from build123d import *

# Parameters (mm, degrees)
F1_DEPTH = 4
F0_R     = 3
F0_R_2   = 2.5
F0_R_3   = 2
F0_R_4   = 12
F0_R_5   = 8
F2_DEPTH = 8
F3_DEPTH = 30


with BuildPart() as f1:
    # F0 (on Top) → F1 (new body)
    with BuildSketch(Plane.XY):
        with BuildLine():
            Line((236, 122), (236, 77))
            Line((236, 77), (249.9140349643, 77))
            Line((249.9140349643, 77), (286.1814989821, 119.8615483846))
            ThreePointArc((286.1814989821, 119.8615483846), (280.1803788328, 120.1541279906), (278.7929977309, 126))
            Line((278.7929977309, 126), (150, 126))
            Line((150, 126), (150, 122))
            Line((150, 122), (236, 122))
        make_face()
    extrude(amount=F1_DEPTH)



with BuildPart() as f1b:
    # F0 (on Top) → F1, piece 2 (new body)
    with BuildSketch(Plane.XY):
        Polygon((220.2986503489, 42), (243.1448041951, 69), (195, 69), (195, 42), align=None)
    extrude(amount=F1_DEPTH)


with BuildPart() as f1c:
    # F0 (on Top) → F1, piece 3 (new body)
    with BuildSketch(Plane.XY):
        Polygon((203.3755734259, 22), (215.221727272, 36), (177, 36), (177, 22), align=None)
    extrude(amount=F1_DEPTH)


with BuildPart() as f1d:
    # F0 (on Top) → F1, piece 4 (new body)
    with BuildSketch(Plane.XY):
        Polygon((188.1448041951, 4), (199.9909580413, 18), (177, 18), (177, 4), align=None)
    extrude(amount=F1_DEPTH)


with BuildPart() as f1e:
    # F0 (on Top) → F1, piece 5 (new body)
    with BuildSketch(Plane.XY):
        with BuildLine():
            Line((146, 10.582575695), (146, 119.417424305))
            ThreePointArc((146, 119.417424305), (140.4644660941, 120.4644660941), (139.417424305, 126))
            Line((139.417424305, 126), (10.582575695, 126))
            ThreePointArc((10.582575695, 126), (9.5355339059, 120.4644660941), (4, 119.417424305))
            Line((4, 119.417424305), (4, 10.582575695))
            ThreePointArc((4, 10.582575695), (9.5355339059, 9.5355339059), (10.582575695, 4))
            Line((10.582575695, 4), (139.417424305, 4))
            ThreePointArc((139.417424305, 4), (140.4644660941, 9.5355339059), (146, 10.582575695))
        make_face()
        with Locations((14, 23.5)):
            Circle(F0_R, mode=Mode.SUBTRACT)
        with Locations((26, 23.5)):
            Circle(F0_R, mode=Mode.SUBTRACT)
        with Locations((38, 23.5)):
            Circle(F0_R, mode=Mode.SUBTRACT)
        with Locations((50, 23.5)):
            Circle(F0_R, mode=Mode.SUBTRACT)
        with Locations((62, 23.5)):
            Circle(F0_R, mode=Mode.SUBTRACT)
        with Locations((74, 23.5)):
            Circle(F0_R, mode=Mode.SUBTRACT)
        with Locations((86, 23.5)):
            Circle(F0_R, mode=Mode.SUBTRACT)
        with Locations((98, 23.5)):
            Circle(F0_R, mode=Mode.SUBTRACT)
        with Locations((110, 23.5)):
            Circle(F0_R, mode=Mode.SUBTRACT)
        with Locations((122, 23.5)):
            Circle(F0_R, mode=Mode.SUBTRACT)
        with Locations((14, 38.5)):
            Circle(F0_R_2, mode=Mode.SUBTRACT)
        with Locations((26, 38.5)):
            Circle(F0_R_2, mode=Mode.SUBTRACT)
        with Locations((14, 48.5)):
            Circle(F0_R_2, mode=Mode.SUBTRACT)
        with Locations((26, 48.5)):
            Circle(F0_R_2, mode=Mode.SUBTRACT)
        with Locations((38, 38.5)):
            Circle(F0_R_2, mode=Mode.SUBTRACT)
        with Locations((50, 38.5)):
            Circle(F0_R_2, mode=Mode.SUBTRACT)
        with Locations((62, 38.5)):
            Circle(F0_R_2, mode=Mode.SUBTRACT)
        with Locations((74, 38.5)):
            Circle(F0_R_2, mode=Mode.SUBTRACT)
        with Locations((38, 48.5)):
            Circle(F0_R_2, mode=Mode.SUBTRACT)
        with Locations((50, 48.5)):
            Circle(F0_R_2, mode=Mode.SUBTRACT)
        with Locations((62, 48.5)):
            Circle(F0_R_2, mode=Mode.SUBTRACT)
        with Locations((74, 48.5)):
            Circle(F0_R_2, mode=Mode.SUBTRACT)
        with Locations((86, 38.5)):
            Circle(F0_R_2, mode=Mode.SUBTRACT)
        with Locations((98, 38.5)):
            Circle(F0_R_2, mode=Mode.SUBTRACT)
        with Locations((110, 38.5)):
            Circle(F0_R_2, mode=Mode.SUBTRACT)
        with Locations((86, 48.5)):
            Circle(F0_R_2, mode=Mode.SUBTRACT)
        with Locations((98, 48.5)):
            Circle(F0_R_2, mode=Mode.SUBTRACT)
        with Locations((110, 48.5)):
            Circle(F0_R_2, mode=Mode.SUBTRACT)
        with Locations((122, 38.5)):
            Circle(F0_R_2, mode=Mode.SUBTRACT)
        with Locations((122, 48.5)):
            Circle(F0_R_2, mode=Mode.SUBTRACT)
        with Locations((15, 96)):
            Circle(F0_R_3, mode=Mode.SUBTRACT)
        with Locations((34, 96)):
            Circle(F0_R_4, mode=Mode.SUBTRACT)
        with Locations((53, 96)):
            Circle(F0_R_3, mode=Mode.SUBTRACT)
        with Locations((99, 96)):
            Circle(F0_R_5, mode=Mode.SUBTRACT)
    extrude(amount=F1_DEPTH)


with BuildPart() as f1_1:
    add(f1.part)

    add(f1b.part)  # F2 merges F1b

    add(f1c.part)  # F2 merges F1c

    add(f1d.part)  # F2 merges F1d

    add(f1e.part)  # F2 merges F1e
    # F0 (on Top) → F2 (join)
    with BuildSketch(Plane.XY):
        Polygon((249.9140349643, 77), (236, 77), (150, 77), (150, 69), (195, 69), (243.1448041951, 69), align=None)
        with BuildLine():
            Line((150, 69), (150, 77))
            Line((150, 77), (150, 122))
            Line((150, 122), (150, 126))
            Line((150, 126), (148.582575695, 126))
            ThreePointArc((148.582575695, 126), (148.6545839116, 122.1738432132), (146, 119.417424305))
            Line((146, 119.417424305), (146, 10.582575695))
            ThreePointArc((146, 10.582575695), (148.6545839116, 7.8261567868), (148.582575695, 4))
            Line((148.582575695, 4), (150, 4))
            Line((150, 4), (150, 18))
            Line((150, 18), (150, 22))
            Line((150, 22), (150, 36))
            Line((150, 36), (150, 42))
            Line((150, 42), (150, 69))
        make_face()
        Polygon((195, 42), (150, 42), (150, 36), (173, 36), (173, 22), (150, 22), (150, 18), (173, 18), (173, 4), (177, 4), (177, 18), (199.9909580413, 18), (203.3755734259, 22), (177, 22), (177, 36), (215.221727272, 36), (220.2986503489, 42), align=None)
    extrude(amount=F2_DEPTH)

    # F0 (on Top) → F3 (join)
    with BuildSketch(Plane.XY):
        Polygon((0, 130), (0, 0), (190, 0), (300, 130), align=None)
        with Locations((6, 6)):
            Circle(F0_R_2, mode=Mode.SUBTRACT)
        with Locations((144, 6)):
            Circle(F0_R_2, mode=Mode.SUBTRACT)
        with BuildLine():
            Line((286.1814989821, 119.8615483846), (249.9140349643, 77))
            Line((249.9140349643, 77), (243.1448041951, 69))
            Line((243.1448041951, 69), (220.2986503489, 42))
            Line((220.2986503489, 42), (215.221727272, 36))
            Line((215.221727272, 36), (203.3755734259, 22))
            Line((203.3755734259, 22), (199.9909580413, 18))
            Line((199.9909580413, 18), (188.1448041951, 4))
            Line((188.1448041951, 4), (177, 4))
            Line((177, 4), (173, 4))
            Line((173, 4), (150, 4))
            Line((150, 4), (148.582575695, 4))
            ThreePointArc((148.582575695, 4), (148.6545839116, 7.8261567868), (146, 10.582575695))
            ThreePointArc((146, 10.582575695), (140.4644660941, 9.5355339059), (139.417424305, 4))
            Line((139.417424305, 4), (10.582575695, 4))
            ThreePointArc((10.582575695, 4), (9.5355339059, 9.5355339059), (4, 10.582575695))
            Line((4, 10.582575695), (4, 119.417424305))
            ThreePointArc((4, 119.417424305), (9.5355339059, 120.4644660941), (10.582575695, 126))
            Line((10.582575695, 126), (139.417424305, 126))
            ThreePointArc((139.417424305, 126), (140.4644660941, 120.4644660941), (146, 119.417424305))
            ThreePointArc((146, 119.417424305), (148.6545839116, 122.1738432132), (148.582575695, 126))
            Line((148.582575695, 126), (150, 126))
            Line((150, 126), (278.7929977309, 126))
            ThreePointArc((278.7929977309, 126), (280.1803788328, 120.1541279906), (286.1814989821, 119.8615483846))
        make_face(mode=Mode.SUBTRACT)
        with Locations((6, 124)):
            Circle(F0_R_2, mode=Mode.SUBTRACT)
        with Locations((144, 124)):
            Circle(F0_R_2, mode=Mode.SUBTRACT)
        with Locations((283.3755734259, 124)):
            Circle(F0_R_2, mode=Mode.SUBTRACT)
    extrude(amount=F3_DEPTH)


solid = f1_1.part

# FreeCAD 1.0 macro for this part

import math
import FreeCAD as App
import Part
import Sketcher


def add_polygon(sketch, points):
    """Adds a closed chain of lines whose ends are joined by coincident constraints."""
    first, n = sketch.GeometryCount, len(points)
    for a, b in zip(points, points[1:] + points[:1]):
        sketch.addGeometry(Part.LineSegment(App.Vector(*a, 0), App.Vector(*b, 0)), False)
    for i in range(n):
        sketch.addConstraint(Sketcher.Constraint("Coincident", first + i, 2, first + (i + 1) % n, 1))

doc = App.newDocument("Part")
body = doc.addObject("PartDesign::Body", "Body")

# Sketch on XY plane
sketch1 = body.newObject("Sketcher::SketchObject", "Sketch")
sketch1.AttachmentSupport = (doc.getObject("XY_Plane"), [""])
sketch1.MapMode = "FlatFace"
sketch1.addGeometry(Part.LineSegment(App.Vector(236, 122, 0), App.Vector(236, 77, 0)), False)
sketch1.addGeometry(Part.LineSegment(App.Vector(236, 77, 0), App.Vector(249.9, 77, 0)), False)
sketch1.addGeometry(Part.LineSegment(App.Vector(249.9, 77, 0), App.Vector(286.2, 119.9, 0)), False)
sketch1.addGeometry(Part.ArcOfCircle(Part.Circle(App.Vector(283.4, 124, 0), App.Vector(0, 0, 1), 5), math.radians(156), math.radians(304)), False)
sketch1.addGeometry(Part.LineSegment(App.Vector(278.8, 126, 0), App.Vector(150, 126, 0)), False)
sketch1.addGeometry(Part.LineSegment(App.Vector(150, 126, 0), App.Vector(150, 122, 0)), False)
sketch1.addGeometry(Part.LineSegment(App.Vector(150, 122, 0), App.Vector(236, 122, 0)), False)
sketch1.addConstraint(Sketcher.Constraint("Coincident", 0, 2, 1, 1))
sketch1.addConstraint(Sketcher.Constraint("Coincident", 1, 2, 2, 1))
sketch1.addConstraint(Sketcher.Constraint("Coincident", 2, 2, 3, 2))
sketch1.addConstraint(Sketcher.Constraint("Coincident", 3, 1, 4, 1))
sketch1.addConstraint(Sketcher.Constraint("Coincident", 4, 2, 5, 1))
sketch1.addConstraint(Sketcher.Constraint("Coincident", 5, 2, 6, 1))
sketch1.addConstraint(Sketcher.Constraint("Coincident", 6, 2, 0, 1))
sketch1.addConstraint(Sketcher.Constraint("Vertical", 0))
sketch1.addConstraint(Sketcher.Constraint("Horizontal", 1))
sketch1.addConstraint(Sketcher.Constraint("Horizontal", 4))
sketch1.addConstraint(Sketcher.Constraint("Vertical", 5))
sketch1.addConstraint(Sketcher.Constraint("Horizontal", 6))
sketch1.addConstraint(Sketcher.Constraint("Radius", 3, 5.0))
sketch1.addConstraint(Sketcher.Constraint("DistanceX", 6, 1, 6, 2, 86.0))
sketch1.addConstraint(Sketcher.Constraint("DistanceY", 0, 2, 0, 1, 45.0))
sketch1.addConstraint(Sketcher.Constraint("DistanceY", 5, 2, 5, 1, 4.0))
sketch1.addConstraint(Sketcher.Constraint("DistanceY", -1, 1, 3, 3, 124.0))
sketch1.addConstraint(Sketcher.Constraint("DistanceX", -1, 1, 0, 2, 236.0))
sketch1.addConstraint(Sketcher.Constraint("DistanceY", -1, 1, 0, 2, 77.0))
sketch1.addConstraint(Sketcher.Constraint("DistanceX", -1, 1, 2, 2, 286.181499))
sketch1.addConstraint(Sketcher.Constraint("DistanceX", 3, 1, 2, 2, 7.388501))
sketch1.addConstraint(Sketcher.Constraint("DistanceX", 1, 1, 1, 2, 13.914035))
pad1 = body.newObject("PartDesign::Pad", "Pad")
pad1.Profile = sketch1
pad1.Length = 4
body2 = doc.addObject("PartDesign::Body", "Body001")

# Sketch on XY plane
sketch2 = body2.newObject("Sketcher::SketchObject", "Sketch001")
sketch2.AttachmentSupport = (doc.getObject("XY_Plane001"), [""])
sketch2.MapMode = "FlatFace"
add_polygon(sketch2, [(220, 42), (243, 69), (195, 69), (195, 42)])  # lines 0-3
sketch2.addConstraint(Sketcher.Constraint("Horizontal", 1))
sketch2.addConstraint(Sketcher.Constraint("Vertical", 2))
sketch2.addConstraint(Sketcher.Constraint("Horizontal", 3))
sketch2.addConstraint(Sketcher.Constraint("DistanceY", 2, 2, 2, 1, 27.0))
sketch2.addConstraint(Sketcher.Constraint("DistanceY", -1, 1, 0, 2, 69.0))
sketch2.addConstraint(Sketcher.Constraint("DistanceX", -1, 1, 1, 2, 195.0))
sketch2.addConstraint(Sketcher.Constraint("DistanceX", 3, 1, 3, 2, 25.29865))
sketch2.addConstraint(Sketcher.Constraint("DistanceX", 1, 2, 1, 1, 48.144804))
pad2 = body2.newObject("PartDesign::Pad", "Pad001")
pad2.Profile = sketch2
pad2.Length = 4
body3 = doc.addObject("PartDesign::Body", "Body002")

# Sketch on XY plane
sketch3 = body3.newObject("Sketcher::SketchObject", "Sketch002")
sketch3.AttachmentSupport = (doc.getObject("XY_Plane002"), [""])
sketch3.MapMode = "FlatFace"
add_polygon(sketch3, [(203, 22), (215, 36), (177, 36), (177, 22)])  # lines 0-3
sketch3.addConstraint(Sketcher.Constraint("Horizontal", 1))
sketch3.addConstraint(Sketcher.Constraint("Vertical", 2))
sketch3.addConstraint(Sketcher.Constraint("Horizontal", 3))
sketch3.addConstraint(Sketcher.Constraint("DistanceY", 2, 2, 2, 1, 14.0))
sketch3.addConstraint(Sketcher.Constraint("DistanceY", -1, 1, 0, 2, 36.0))
sketch3.addConstraint(Sketcher.Constraint("DistanceX", -1, 1, 1, 2, 177.0))
sketch3.addConstraint(Sketcher.Constraint("Distance", 0, 18.339339))
sketch3.addConstraint(Sketcher.Constraint("DistanceX", 1, 2, 1, 1, 38.221727))
pad3 = body3.newObject("PartDesign::Pad", "Pad002")
pad3.Profile = sketch3
pad3.Length = 4
body4 = doc.addObject("PartDesign::Body", "Body003")

# Sketch on XY plane
sketch4 = body4.newObject("Sketcher::SketchObject", "Sketch003")
sketch4.AttachmentSupport = (doc.getObject("XY_Plane003"), [""])
sketch4.MapMode = "FlatFace"
add_polygon(sketch4, [(188, 4), (200, 18), (177, 18), (177, 4)])  # lines 0-3
sketch4.addConstraint(Sketcher.Constraint("Horizontal", 1))
sketch4.addConstraint(Sketcher.Constraint("Vertical", 2))
sketch4.addConstraint(Sketcher.Constraint("Horizontal", 3))
sketch4.addConstraint(Sketcher.Constraint("DistanceY", 2, 2, 2, 1, 14.0))
sketch4.addConstraint(Sketcher.Constraint("DistanceY", -1, 1, 0, 2, 18.0))
sketch4.addConstraint(Sketcher.Constraint("DistanceX", -1, 1, 1, 2, 177.0))
sketch4.addConstraint(Sketcher.Constraint("DistanceX", 1, 2, 1, 1, 22.990958))
sketch4.addConstraint(Sketcher.Constraint("Distance", 0, 18.339339))
pad4 = body4.newObject("PartDesign::Pad", "Pad003")
pad4.Profile = sketch4
pad4.Length = 4
body5 = doc.addObject("PartDesign::Body", "Body004")

# Sketch on XY plane
sketch5 = body5.newObject("Sketcher::SketchObject", "Sketch004")
sketch5.AttachmentSupport = (doc.getObject("XY_Plane004"), [""])
sketch5.MapMode = "FlatFace"
sketch5.addGeometry(Part.LineSegment(App.Vector(146, 10.6, 0), App.Vector(146, 119.4, 0)), False)
sketch5.addGeometry(Part.ArcOfCircle(Part.Circle(App.Vector(144, 124, 0), App.Vector(0, 0, 1), 5), math.radians(156), math.radians(294)), False)
sketch5.addGeometry(Part.LineSegment(App.Vector(139.4, 126, 0), App.Vector(10.6, 126, 0)), False)
sketch5.addGeometry(Part.ArcOfCircle(Part.Circle(App.Vector(6, 124, 0), App.Vector(0, 0, 1), 5), math.radians(-114), math.radians(24)), False)
sketch5.addGeometry(Part.LineSegment(App.Vector(4, 119.4, 0), App.Vector(4, 10.6, 0)), False)
sketch5.addGeometry(Part.ArcOfCircle(Part.Circle(App.Vector(6, 6, 0), App.Vector(0, 0, 1), 5), math.radians(-24), math.radians(114)), False)
sketch5.addGeometry(Part.LineSegment(App.Vector(10.6, 4, 0), App.Vector(139.4, 4, 0)), False)
sketch5.addGeometry(Part.ArcOfCircle(Part.Circle(App.Vector(144, 6, 0), App.Vector(0, 0, 1), 5), math.radians(66), math.radians(204)), False)
sketch5.addGeometry(Part.Circle(App.Vector(14, 23.5, 0), App.Vector(0, 0, 1), 3), False)
sketch5.addGeometry(Part.Circle(App.Vector(26, 23.5, 0), App.Vector(0, 0, 1), 3), False)
sketch5.addGeometry(Part.Circle(App.Vector(38, 23.5, 0), App.Vector(0, 0, 1), 3), False)
sketch5.addGeometry(Part.Circle(App.Vector(14, 38.5, 0), App.Vector(0, 0, 1), 2.5), False)
sketch5.addGeometry(Part.Circle(App.Vector(26, 38.5, 0), App.Vector(0, 0, 1), 2.5), False)
sketch5.addGeometry(Part.Circle(App.Vector(38, 38.5, 0), App.Vector(0, 0, 1), 2.5), False)
sketch5.addGeometry(Part.Circle(App.Vector(50, 23.5, 0), App.Vector(0, 0, 1), 3), False)
sketch5.addGeometry(Part.Circle(App.Vector(62, 23.5, 0), App.Vector(0, 0, 1), 3), False)
sketch5.addGeometry(Part.Circle(App.Vector(50, 38.5, 0), App.Vector(0, 0, 1), 2.5), False)
sketch5.addGeometry(Part.Circle(App.Vector(62, 38.5, 0), App.Vector(0, 0, 1), 2.5), False)
sketch5.addGeometry(Part.Circle(App.Vector(14, 48.5, 0), App.Vector(0, 0, 1), 2.5), False)
sketch5.addGeometry(Part.Circle(App.Vector(26, 48.5, 0), App.Vector(0, 0, 1), 2.5), False)
sketch5.addGeometry(Part.Circle(App.Vector(38, 48.5, 0), App.Vector(0, 0, 1), 2.5), False)
sketch5.addGeometry(Part.Circle(App.Vector(50, 48.5, 0), App.Vector(0, 0, 1), 2.5), False)
sketch5.addGeometry(Part.Circle(App.Vector(62, 48.5, 0), App.Vector(0, 0, 1), 2.5), False)
sketch5.addGeometry(Part.Circle(App.Vector(74, 23.5, 0), App.Vector(0, 0, 1), 3), False)
sketch5.addGeometry(Part.Circle(App.Vector(86, 23.5, 0), App.Vector(0, 0, 1), 3), False)
sketch5.addGeometry(Part.Circle(App.Vector(74, 38.5, 0), App.Vector(0, 0, 1), 2.5), False)
sketch5.addGeometry(Part.Circle(App.Vector(86, 38.5, 0), App.Vector(0, 0, 1), 2.5), False)
sketch5.addGeometry(Part.Circle(App.Vector(98, 23.5, 0), App.Vector(0, 0, 1), 3), False)
sketch5.addGeometry(Part.Circle(App.Vector(110, 23.5, 0), App.Vector(0, 0, 1), 3), False)
sketch5.addGeometry(Part.Circle(App.Vector(122, 23.5, 0), App.Vector(0, 0, 1), 3), False)
sketch5.addGeometry(Part.Circle(App.Vector(98, 38.5, 0), App.Vector(0, 0, 1), 2.5), False)
sketch5.addGeometry(Part.Circle(App.Vector(110, 38.5, 0), App.Vector(0, 0, 1), 2.5), False)
sketch5.addGeometry(Part.Circle(App.Vector(122, 38.5, 0), App.Vector(0, 0, 1), 2.5), False)
sketch5.addGeometry(Part.Circle(App.Vector(74, 48.5, 0), App.Vector(0, 0, 1), 2.5), False)
sketch5.addGeometry(Part.Circle(App.Vector(86, 48.5, 0), App.Vector(0, 0, 1), 2.5), False)
sketch5.addGeometry(Part.Circle(App.Vector(98, 48.5, 0), App.Vector(0, 0, 1), 2.5), False)
sketch5.addGeometry(Part.Circle(App.Vector(110, 48.5, 0), App.Vector(0, 0, 1), 2.5), False)
sketch5.addGeometry(Part.Circle(App.Vector(122, 48.5, 0), App.Vector(0, 0, 1), 2.5), False)
sketch5.addGeometry(Part.Circle(App.Vector(15, 96, 0), App.Vector(0, 0, 1), 2), False)
sketch5.addGeometry(Part.Circle(App.Vector(34, 96, 0), App.Vector(0, 0, 1), 12), False)
sketch5.addGeometry(Part.Circle(App.Vector(53, 96, 0), App.Vector(0, 0, 1), 2), False)
sketch5.addGeometry(Part.Circle(App.Vector(99, 96, 0), App.Vector(0, 0, 1), 8), False)
sketch5.addConstraint(Sketcher.Constraint("Coincident", 0, 2, 1, 2))
sketch5.addConstraint(Sketcher.Constraint("Coincident", 1, 1, 2, 1))
sketch5.addConstraint(Sketcher.Constraint("Coincident", 2, 2, 3, 2))
sketch5.addConstraint(Sketcher.Constraint("Coincident", 3, 1, 4, 1))
sketch5.addConstraint(Sketcher.Constraint("Coincident", 4, 2, 5, 2))
sketch5.addConstraint(Sketcher.Constraint("Coincident", 5, 1, 6, 1))
sketch5.addConstraint(Sketcher.Constraint("Coincident", 6, 2, 7, 2))
sketch5.addConstraint(Sketcher.Constraint("Coincident", 7, 1, 0, 1))
sketch5.addConstraint(Sketcher.Constraint("Vertical", 0))
sketch5.addConstraint(Sketcher.Constraint("Horizontal", 2))
sketch5.addConstraint(Sketcher.Constraint("Vertical", 4))
sketch5.addConstraint(Sketcher.Constraint("Horizontal", 6))
sketch5.addConstraint(Sketcher.Constraint("Equal", 1, 3))
sketch5.addConstraint(Sketcher.Constraint("Equal", 3, 5))
sketch5.addConstraint(Sketcher.Constraint("Equal", 5, 7))
sketch5.addConstraint(Sketcher.Constraint("Equal", 8, 9))
sketch5.addConstraint(Sketcher.Constraint("Equal", 9, 10))
sketch5.addConstraint(Sketcher.Constraint("Equal", 11, 12))
sketch5.addConstraint(Sketcher.Constraint("Equal", 12, 13))
sketch5.addConstraint(Sketcher.Constraint("Equal", 10, 14))
sketch5.addConstraint(Sketcher.Constraint("Equal", 14, 15))
sketch5.addConstraint(Sketcher.Constraint("Equal", 13, 16))
sketch5.addConstraint(Sketcher.Constraint("Equal", 16, 17))
sketch5.addConstraint(Sketcher.Constraint("Equal", 17, 18))
sketch5.addConstraint(Sketcher.Constraint("Equal", 18, 19))
sketch5.addConstraint(Sketcher.Constraint("Equal", 19, 20))
sketch5.addConstraint(Sketcher.Constraint("Equal", 20, 21))
sketch5.addConstraint(Sketcher.Constraint("Equal", 21, 22))
sketch5.addConstraint(Sketcher.Constraint("Equal", 15, 23))
sketch5.addConstraint(Sketcher.Constraint("Equal", 23, 24))
sketch5.addConstraint(Sketcher.Constraint("Equal", 22, 25))
sketch5.addConstraint(Sketcher.Constraint("Equal", 25, 26))
sketch5.addConstraint(Sketcher.Constraint("Equal", 24, 27))
sketch5.addConstraint(Sketcher.Constraint("Equal", 27, 28))
sketch5.addConstraint(Sketcher.Constraint("Equal", 28, 29))
sketch5.addConstraint(Sketcher.Constraint("Equal", 26, 30))
sketch5.addConstraint(Sketcher.Constraint("Equal", 30, 31))
sketch5.addConstraint(Sketcher.Constraint("Equal", 31, 32))
sketch5.addConstraint(Sketcher.Constraint("Equal", 32, 33))
sketch5.addConstraint(Sketcher.Constraint("Equal", 33, 34))
sketch5.addConstraint(Sketcher.Constraint("Equal", 34, 35))
sketch5.addConstraint(Sketcher.Constraint("Equal", 35, 36))
sketch5.addConstraint(Sketcher.Constraint("Equal", 36, 37))
sketch5.addConstraint(Sketcher.Constraint("Equal", 38, 40))
sketch5.addConstraint(Sketcher.Constraint("Horizontal", 1, 3, 3, 3))
sketch5.addConstraint(Sketcher.Constraint("Horizontal", 5, 3, 7, 3))
sketch5.addConstraint(Sketcher.Constraint("Horizontal", 8, 3, 9, 3))
sketch5.addConstraint(Sketcher.Constraint("Horizontal", 9, 3, 10, 3))
sketch5.addConstraint(Sketcher.Constraint("Horizontal", 11, 3, 12, 3))
sketch5.addConstraint(Sketcher.Constraint("Horizontal", 12, 3, 13, 3))
sketch5.addConstraint(Sketcher.Constraint("Horizontal", 10, 3, 14, 3))
sketch5.addConstraint(Sketcher.Constraint("Horizontal", 14, 3, 15, 3))
sketch5.addConstraint(Sketcher.Constraint("Horizontal", 13, 3, 16, 3))
sketch5.addConstraint(Sketcher.Constraint("Horizontal", 16, 3, 17, 3))
sketch5.addConstraint(Sketcher.Constraint("Horizontal", 18, 3, 19, 3))
sketch5.addConstraint(Sketcher.Constraint("Horizontal", 19, 3, 20, 3))
sketch5.addConstraint(Sketcher.Constraint("Horizontal", 20, 3, 21, 3))
sketch5.addConstraint(Sketcher.Constraint("Horizontal", 21, 3, 22, 3))
sketch5.addConstraint(Sketcher.Constraint("Horizontal", 15, 3, 23, 3))
sketch5.addConstraint(Sketcher.Constraint("Horizontal", 23, 3, 24, 3))
sketch5.addConstraint(Sketcher.Constraint("Horizontal", 17, 3, 25, 3))
sketch5.addConstraint(Sketcher.Constraint("Horizontal", 25, 3, 26, 3))
sketch5.addConstraint(Sketcher.Constraint("Horizontal", 24, 3, 27, 3))
sketch5.addConstraint(Sketcher.Constraint("Horizontal", 27, 3, 28, 3))
sketch5.addConstraint(Sketcher.Constraint("Horizontal", 28, 3, 29, 3))
sketch5.addConstraint(Sketcher.Constraint("Horizontal", 26, 3, 30, 3))
sketch5.addConstraint(Sketcher.Constraint("Horizontal", 30, 3, 31, 3))
sketch5.addConstraint(Sketcher.Constraint("Horizontal", 31, 3, 32, 3))
sketch5.addConstraint(Sketcher.Constraint("Horizontal", 22, 3, 33, 3))
sketch5.addConstraint(Sketcher.Constraint("Horizontal", 33, 3, 34, 3))
sketch5.addConstraint(Sketcher.Constraint("Horizontal", 34, 3, 35, 3))
sketch5.addConstraint(Sketcher.Constraint("Horizontal", 35, 3, 36, 3))
sketch5.addConstraint(Sketcher.Constraint("Horizontal", 36, 3, 37, 3))
sketch5.addConstraint(Sketcher.Constraint("Horizontal", 38, 3, 39, 3))
sketch5.addConstraint(Sketcher.Constraint("Horizontal", 39, 3, 40, 3))
sketch5.addConstraint(Sketcher.Constraint("Horizontal", 40, 3, 41, 3))
sketch5.addConstraint(Sketcher.Constraint("Horizontal", 0, 2, 3, 1))
sketch5.addConstraint(Sketcher.Constraint("Horizontal", 4, 2, 7, 1))
sketch5.addConstraint(Sketcher.Constraint("Vertical", 3, 3, 5, 3))
sketch5.addConstraint(Sketcher.Constraint("Vertical", 8, 3, 11, 3))
sketch5.addConstraint(Sketcher.Constraint("Vertical", 9, 3, 12, 3))
sketch5.addConstraint(Sketcher.Constraint("Vertical", 10, 3, 13, 3))
sketch5.addConstraint(Sketcher.Constraint("Vertical", 14, 3, 16, 3))
sketch5.addConstraint(Sketcher.Constraint("Vertical", 15, 3, 17, 3))
sketch5.addConstraint(Sketcher.Constraint("Vertical", 11, 3, 18, 3))
sketch5.addConstraint(Sketcher.Constraint("Vertical", 12, 3, 19, 3))
sketch5.addConstraint(Sketcher.Constraint("Vertical", 13, 3, 20, 3))
sketch5.addConstraint(Sketcher.Constraint("Vertical", 16, 3, 21, 3))
sketch5.addConstraint(Sketcher.Constraint("Vertical", 17, 3, 22, 3))
sketch5.addConstraint(Sketcher.Constraint("Vertical", 23, 3, 25, 3))
sketch5.addConstraint(Sketcher.Constraint("Vertical", 24, 3, 26, 3))
sketch5.addConstraint(Sketcher.Constraint("Vertical", 27, 3, 30, 3))
sketch5.addConstraint(Sketcher.Constraint("Vertical", 28, 3, 31, 3))
sketch5.addConstraint(Sketcher.Constraint("Vertical", 29, 3, 32, 3))
sketch5.addConstraint(Sketcher.Constraint("Vertical", 25, 3, 33, 3))
sketch5.addConstraint(Sketcher.Constraint("Vertical", 26, 3, 34, 3))
sketch5.addConstraint(Sketcher.Constraint("Vertical", 30, 3, 35, 3))
sketch5.addConstraint(Sketcher.Constraint("Vertical", 31, 3, 36, 3))
sketch5.addConstraint(Sketcher.Constraint("Vertical", 32, 3, 37, 3))
sketch5.addConstraint(Sketcher.Constraint("Vertical", 2, 2, 5, 1))
sketch5.addConstraint(Sketcher.Constraint("Diameter", 8, 6.0))
sketch5.addConstraint(Sketcher.Constraint("Diameter", 11, 5.0))
sketch5.addConstraint(Sketcher.Constraint("Diameter", 38, 4.0))
sketch5.addConstraint(Sketcher.Constraint("Diameter", 39, 24.0))
sketch5.addConstraint(Sketcher.Constraint("Diameter", 41, 16.0))
sketch5.addConstraint(Sketcher.Constraint("Radius", 1, 5.0))
sketch5.addConstraint(Sketcher.Constraint("DistanceX", -1, 1, 1, 3, 144.0))
sketch5.addConstraint(Sketcher.Constraint("DistanceY", -1, 1, 1, 3, 124.0))
sketch5.addConstraint(Sketcher.Constraint("DistanceX", -1, 1, 3, 3, 6.0))
sketch5.addConstraint(Sketcher.Constraint("DistanceY", -1, 1, 5, 3, 6.0))
sketch5.addConstraint(Sketcher.Constraint("DistanceX", -1, 1, 8, 3, 14.0))
sketch5.addConstraint(Sketcher.Constraint("DistanceX", -1, 1, 9, 3, 26.0))
sketch5.addConstraint(Sketcher.Constraint("DistanceX", -1, 1, 10, 3, 38.0))
sketch5.addConstraint(Sketcher.Constraint("DistanceX", -1, 1, 14, 3, 50.0))
sketch5.addConstraint(Sketcher.Constraint("DistanceX", -1, 1, 15, 3, 62.0))
sketch5.addConstraint(Sketcher.Constraint("DistanceX", -1, 1, 23, 3, 74.0))
sketch5.addConstraint(Sketcher.Constraint("DistanceX", -1, 1, 24, 3, 86.0))
sketch5.addConstraint(Sketcher.Constraint("DistanceX", -1, 1, 27, 3, 98.0))
sketch5.addConstraint(Sketcher.Constraint("DistanceX", -1, 1, 28, 3, 110.0))
sketch5.addConstraint(Sketcher.Constraint("DistanceX", -1, 1, 29, 3, 122.0))
sketch5.addConstraint(Sketcher.Constraint("DistanceX", -1, 1, 38, 3, 15.0))
sketch5.addConstraint(Sketcher.Constraint("DistanceY", -1, 1, 38, 3, 96.0))
sketch5.addConstraint(Sketcher.Constraint("DistanceX", -1, 1, 39, 3, 34.0))
sketch5.addConstraint(Sketcher.Constraint("DistanceX", -1, 1, 40, 3, 53.0))
sketch5.addConstraint(Sketcher.Constraint("DistanceX", -1, 1, 41, 3, 99.0))
sketch5.addConstraint(Sketcher.Constraint("DistanceX", -1, 1, 0, 2, 146.0))
sketch5.addConstraint(Sketcher.Constraint("DistanceY", -1, 1, 1, 1, 126.0))
sketch5.addConstraint(Sketcher.Constraint("DistanceY", 8, 3, 11, 3, 15.0))
sketch5.addConstraint(Sketcher.Constraint("DistanceY", 11, 3, 18, 3, 10.0))
sketch5.addConstraint(Sketcher.Constraint("DistanceY", -1, 1, 8, 3, 23.5))
pad5 = body5.newObject("PartDesign::Pad", "Pad004")
pad5.Profile = sketch5
pad5.Length = 4
body.AllowCompound = True
doc.recompute()

boolean = body.newObject("PartDesign::Boolean", "Boolean")
boolean.Type = "Fuse"
boolean.addObjects([body2])
doc.recompute()

boolean2 = body.newObject("PartDesign::Boolean", "Boolean001")
boolean2.Type = "Fuse"
boolean2.addObjects([body3])
doc.recompute()

boolean3 = body.newObject("PartDesign::Boolean", "Boolean002")
boolean3.Type = "Fuse"
boolean3.addObjects([body4])
doc.recompute()

boolean4 = body.newObject("PartDesign::Boolean", "Boolean003")
boolean4.Type = "Fuse"
boolean4.addObjects([body5])

# Sketch on XY plane
sketch6 = body.newObject("Sketcher::SketchObject", "Sketch005")
sketch6.AttachmentSupport = (doc.getObject("XY_Plane"), [""])
sketch6.MapMode = "FlatFace"
sketch6.addGeometry(Part.LineSegment(App.Vector(249.9, 77, 0), App.Vector(150, 77, 0)), False)  # 0
sketch6.addGeometry(Part.LineSegment(App.Vector(150, 77, 0), App.Vector(150, 126, 0)), False)  # 1
sketch6.addGeometry(Part.LineSegment(App.Vector(150, 126, 0), App.Vector(148.6, 126, 0)), False)  # 2
sketch6.addGeometry(Part.ArcOfCircle(Part.Circle(App.Vector(144, 124, 0), App.Vector(0, 0, 1), 5), math.radians(-66), math.radians(24)), False)  # 3
sketch6.addGeometry(Part.LineSegment(App.Vector(146, 119.4, 0), App.Vector(146, 10.6, 0)), False)  # 4
sketch6.addGeometry(Part.ArcOfCircle(Part.Circle(App.Vector(144, 6, 0), App.Vector(0, 0, 1), 5), math.radians(-24), math.radians(66)), False)  # 5
sketch6.addGeometry(Part.LineSegment(App.Vector(148.6, 4, 0), App.Vector(150, 4, 0)), False)  # 6
sketch6.addGeometry(Part.LineSegment(App.Vector(150, 4, 0), App.Vector(150, 18, 0)), False)  # 7
sketch6.addGeometry(Part.LineSegment(App.Vector(150, 18, 0), App.Vector(173, 18, 0)), False)  # 8
sketch6.addGeometry(Part.LineSegment(App.Vector(173, 18, 0), App.Vector(173, 4, 0)), False)  # 9
sketch6.addGeometry(Part.LineSegment(App.Vector(173, 4, 0), App.Vector(177, 4, 0)), False)  # 10
sketch6.addGeometry(Part.LineSegment(App.Vector(177, 4, 0), App.Vector(177, 18, 0)), False)  # 11
sketch6.addGeometry(Part.LineSegment(App.Vector(177, 18, 0), App.Vector(200, 18, 0)), False)  # 12
sketch6.addGeometry(Part.LineSegment(App.Vector(200, 18, 0), App.Vector(203.4, 22, 0)), False)  # 13
sketch6.addGeometry(Part.LineSegment(App.Vector(203.4, 22, 0), App.Vector(177, 22, 0)), False)  # 14
sketch6.addGeometry(Part.LineSegment(App.Vector(177, 22, 0), App.Vector(177, 36, 0)), False)  # 15
sketch6.addGeometry(Part.LineSegment(App.Vector(177, 36, 0), App.Vector(215.2, 36, 0)), False)  # 16
sketch6.addGeometry(Part.LineSegment(App.Vector(215.2, 36, 0), App.Vector(220.3, 42, 0)), False)  # 17
sketch6.addGeometry(Part.LineSegment(App.Vector(220.3, 42, 0), App.Vector(150, 42, 0)), False)  # 18
sketch6.addGeometry(Part.LineSegment(App.Vector(150, 42, 0), App.Vector(150, 69, 0)), False)  # 19
sketch6.addGeometry(Part.LineSegment(App.Vector(150, 69, 0), App.Vector(243.1, 69, 0)), False)  # 20
sketch6.addGeometry(Part.LineSegment(App.Vector(243.1, 69, 0), App.Vector(249.9, 77, 0)), False)  # 21
add_polygon(sketch6, [(150, 22), (150, 36), (173, 36), (173, 22)])  # lines 22-25
sketch6.addConstraint(Sketcher.Constraint("Coincident", 0, 2, 1, 1))
sketch6.addConstraint(Sketcher.Constraint("Coincident", 1, 2, 2, 1))
sketch6.addConstraint(Sketcher.Constraint("Coincident", 2, 2, 3, 2))
sketch6.addConstraint(Sketcher.Constraint("Coincident", 3, 1, 4, 1))
sketch6.addConstraint(Sketcher.Constraint("Coincident", 4, 2, 5, 2))
sketch6.addConstraint(Sketcher.Constraint("Coincident", 5, 1, 6, 1))
sketch6.addConstraint(Sketcher.Constraint("Coincident", 6, 2, 7, 1))
sketch6.addConstraint(Sketcher.Constraint("Coincident", 7, 2, 8, 1))
sketch6.addConstraint(Sketcher.Constraint("Coincident", 8, 2, 9, 1))
sketch6.addConstraint(Sketcher.Constraint("Coincident", 9, 2, 10, 1))
sketch6.addConstraint(Sketcher.Constraint("Coincident", 10, 2, 11, 1))
sketch6.addConstraint(Sketcher.Constraint("Coincident", 11, 2, 12, 1))
sketch6.addConstraint(Sketcher.Constraint("Coincident", 12, 2, 13, 1))
sketch6.addConstraint(Sketcher.Constraint("Coincident", 13, 2, 14, 1))
sketch6.addConstraint(Sketcher.Constraint("Coincident", 14, 2, 15, 1))
sketch6.addConstraint(Sketcher.Constraint("Coincident", 15, 2, 16, 1))
sketch6.addConstraint(Sketcher.Constraint("Coincident", 16, 2, 17, 1))
sketch6.addConstraint(Sketcher.Constraint("Coincident", 17, 2, 18, 1))
sketch6.addConstraint(Sketcher.Constraint("Coincident", 18, 2, 19, 1))
sketch6.addConstraint(Sketcher.Constraint("Coincident", 19, 2, 20, 1))
sketch6.addConstraint(Sketcher.Constraint("Coincident", 20, 2, 21, 1))
sketch6.addConstraint(Sketcher.Constraint("Coincident", 21, 2, 0, 1))
sketch6.addConstraint(Sketcher.Constraint("Horizontal", 0))
sketch6.addConstraint(Sketcher.Constraint("Vertical", 1))
sketch6.addConstraint(Sketcher.Constraint("Horizontal", 2))
sketch6.addConstraint(Sketcher.Constraint("Vertical", 4))
sketch6.addConstraint(Sketcher.Constraint("Horizontal", 6))
sketch6.addConstraint(Sketcher.Constraint("Vertical", 7))
sketch6.addConstraint(Sketcher.Constraint("Horizontal", 8))
sketch6.addConstraint(Sketcher.Constraint("Vertical", 9))
sketch6.addConstraint(Sketcher.Constraint("Horizontal", 10))
sketch6.addConstraint(Sketcher.Constraint("Vertical", 11))
sketch6.addConstraint(Sketcher.Constraint("Horizontal", 12))
sketch6.addConstraint(Sketcher.Constraint("Horizontal", 14))
sketch6.addConstraint(Sketcher.Constraint("Vertical", 15))
sketch6.addConstraint(Sketcher.Constraint("Horizontal", 16))
sketch6.addConstraint(Sketcher.Constraint("Horizontal", 18))
sketch6.addConstraint(Sketcher.Constraint("Vertical", 19))
sketch6.addConstraint(Sketcher.Constraint("Horizontal", 20))
sketch6.addConstraint(Sketcher.Constraint("Vertical", 22))
sketch6.addConstraint(Sketcher.Constraint("Horizontal", 23))
sketch6.addConstraint(Sketcher.Constraint("Vertical", 24))
sketch6.addConstraint(Sketcher.Constraint("Horizontal", 25))
sketch6.addConstraint(Sketcher.Constraint("Equal", 3, 5))
sketch6.addConstraint(Sketcher.Constraint("Parallel", 13, 17))
sketch6.addConstraint(Sketcher.Constraint("Parallel", 17, 21))
sketch6.addConstraint(Sketcher.Constraint("Horizontal", 6, 2, 9, 2))
sketch6.addConstraint(Sketcher.Constraint("Horizontal", 8, 2, 11, 2))
sketch6.addConstraint(Sketcher.Constraint("Horizontal", 16, 2, 22, 2))
sketch6.addConstraint(Sketcher.Constraint("Horizontal", 14, 2, 24, 2))
sketch6.addConstraint(Sketcher.Constraint("Vertical", 3, 3, 5, 3))
sketch6.addConstraint(Sketcher.Constraint("Vertical", 2, 2, 5, 1))
sketch6.addConstraint(Sketcher.Constraint("Vertical", 1, 2, 6, 2))
sketch6.addConstraint(Sketcher.Constraint("Vertical", 11, 2, 14, 2))
sketch6.addConstraint(Sketcher.Constraint("Vertical", 7, 2, 18, 2))
sketch6.addConstraint(Sketcher.Constraint("Vertical", 19, 2, 22, 2))
sketch6.addConstraint(Sketcher.Constraint("Vertical", 9, 2, 23, 2))
sketch6.addConstraint(Sketcher.Constraint("Equal", 11, 15))
sketch6.addConstraint(Sketcher.Constraint("Radius", 3, 5.0))
sketch6.addConstraint(Sketcher.Constraint("DistanceX", 8, 1, 8, 2, 23.0))
sketch6.addConstraint(Sketcher.Constraint("DistanceX", 10, 1, 10, 2, 4.0))
sketch6.addConstraint(Sketcher.Constraint("DistanceY", 1, 1, 1, 2, 49.0))
sketch6.addConstraint(Sketcher.Constraint("DistanceY", 7, 1, 7, 2, 14.0))
sketch6.addConstraint(Sketcher.Constraint("DistanceY", 19, 1, 19, 2, 27.0))
sketch6.addConstraint(Sketcher.Constraint("DistanceX", -1, 1, 3, 3, 144.0))
sketch6.addConstraint(Sketcher.Constraint("DistanceY", -1, 1, 3, 3, 124.0))
sketch6.addConstraint(Sketcher.Constraint("DistanceY", -1, 1, 5, 3, 6.0))
sketch6.addConstraint(Sketcher.Constraint("DistanceX", -1, 1, 0, 2, 150.0))
sketch6.addConstraint(Sketcher.Constraint("DistanceY", -1, 1, 0, 2, 77.0))
sketch6.addConstraint(Sketcher.Constraint("DistanceX", -1, 1, 3, 1, 146.0))
sketch6.addConstraint(Sketcher.Constraint("DistanceY", -1, 1, 13, 2, 22.0))
sketch6.addConstraint(Sketcher.Constraint("DistanceY", -1, 1, 17, 2, 42.0))
sketch6.addConstraint(Sketcher.Constraint("DistanceX", 12, 1, 12, 2, 22.990958))
sketch6.addConstraint(Sketcher.Constraint("DistanceX", 18, 2, 18, 1, 70.29865))
sketch6.addConstraint(Sketcher.Constraint("Distance", 13, 5.239811))
sketch6.addConstraint(Sketcher.Constraint("DistanceX", 0, 2, 0, 1, 99.914035))
pad6 = body.newObject("PartDesign::Pad", "Pad005")
pad6.Profile = sketch6
pad6.Length = 8

# Sketch on XY plane
sketch7 = body.newObject("Sketcher::SketchObject", "Sketch006")
sketch7.AttachmentSupport = (doc.getObject("XY_Plane"), [""])
sketch7.MapMode = "FlatFace"
add_polygon(sketch7, [(0, 130), (0, 0), (190, 0), (300, 130)])  # lines 0-3
sketch7.addGeometry(Part.Circle(App.Vector(6, 6, 0), App.Vector(0, 0, 1), 2.5), False)  # 4
sketch7.addGeometry(Part.Circle(App.Vector(144, 6, 0), App.Vector(0, 0, 1), 2.5), False)  # 5
sketch7.addGeometry(Part.Circle(App.Vector(6, 124, 0), App.Vector(0, 0, 1), 2.5), False)  # 6
sketch7.addGeometry(Part.Circle(App.Vector(144, 124, 0), App.Vector(0, 0, 1), 2.5), False)  # 7
sketch7.addGeometry(Part.ArcOfCircle(Part.Circle(App.Vector(283.4, 124, 0), App.Vector(0, 0, 1), 5), math.radians(156), math.radians(304)), False)  # 8
sketch7.addGeometry(Part.LineSegment(App.Vector(286.2, 119.9, 0), App.Vector(249.9, 77, 0)), False)  # 9
sketch7.addGeometry(Part.LineSegment(App.Vector(249.9, 77, 0), App.Vector(243.1, 69, 0)), False)  # 10
sketch7.addGeometry(Part.LineSegment(App.Vector(243.1, 69, 0), App.Vector(220.3, 42, 0)), False)  # 11
sketch7.addGeometry(Part.LineSegment(App.Vector(220.3, 42, 0), App.Vector(200, 18, 0)), False)  # 12
sketch7.addGeometry(Part.LineSegment(App.Vector(200, 18, 0), App.Vector(188.1, 4, 0)), False)  # 13
sketch7.addGeometry(Part.LineSegment(App.Vector(188.1, 4, 0), App.Vector(148.6, 4, 0)), False)  # 14
sketch7.addGeometry(Part.ArcOfCircle(Part.Circle(App.Vector(144, 6, 0), App.Vector(0, 0, 1), 5), math.radians(-24), math.radians(66)), False)  # 15
sketch7.addGeometry(Part.ArcOfCircle(Part.Circle(App.Vector(144, 6, 0), App.Vector(0, 0, 1), 5), math.radians(66), math.radians(204)), False)  # 16
sketch7.addGeometry(Part.LineSegment(App.Vector(139.4, 4, 0), App.Vector(10.6, 4, 0)), False)  # 17
sketch7.addGeometry(Part.ArcOfCircle(Part.Circle(App.Vector(6, 6, 0), App.Vector(0, 0, 1), 5), math.radians(-24), math.radians(114)), False)  # 18
sketch7.addGeometry(Part.LineSegment(App.Vector(4, 10.6, 0), App.Vector(4, 119.4, 0)), False)  # 19
sketch7.addGeometry(Part.ArcOfCircle(Part.Circle(App.Vector(6, 124, 0), App.Vector(0, 0, 1), 5), math.radians(-114), math.radians(24)), False)  # 20
sketch7.addGeometry(Part.LineSegment(App.Vector(10.6, 126, 0), App.Vector(139.4, 126, 0)), False)  # 21
sketch7.addGeometry(Part.ArcOfCircle(Part.Circle(App.Vector(144, 124, 0), App.Vector(0, 0, 1), 5), math.radians(156), math.radians(294)), False)  # 22
sketch7.addGeometry(Part.ArcOfCircle(Part.Circle(App.Vector(144, 124, 0), App.Vector(0, 0, 1), 5), math.radians(-66), math.radians(24)), False)  # 23
sketch7.addGeometry(Part.LineSegment(App.Vector(148.6, 126, 0), App.Vector(278.8, 126, 0)), False)  # 24
sketch7.addGeometry(Part.Circle(App.Vector(283.4, 124, 0), App.Vector(0, 0, 1), 2.5), False)  # 25
sketch7.addConstraint(Sketcher.Constraint("Coincident", 8, 2, 9, 1))
sketch7.addConstraint(Sketcher.Constraint("Coincident", 9, 2, 10, 1))
sketch7.addConstraint(Sketcher.Constraint("Coincident", 10, 2, 11, 1))
sketch7.addConstraint(Sketcher.Constraint("Coincident", 11, 2, 12, 1))
sketch7.addConstraint(Sketcher.Constraint("Coincident", 12, 2, 13, 1))
sketch7.addConstraint(Sketcher.Constraint("Coincident", 13, 2, 14, 1))
sketch7.addConstraint(Sketcher.Constraint("Coincident", 14, 2, 15, 1))
sketch7.addConstraint(Sketcher.Constraint("Tangent", 15, 2, 16, 1))
sketch7.addConstraint(Sketcher.Constraint("Coincident", 16, 2, 17, 1))
sketch7.addConstraint(Sketcher.Constraint("Coincident", 17, 2, 18, 1))
sketch7.addConstraint(Sketcher.Constraint("Coincident", 18, 2, 19, 1))
sketch7.addConstraint(Sketcher.Constraint("Coincident", 19, 2, 20, 1))
sketch7.addConstraint(Sketcher.Constraint("Coincident", 20, 2, 21, 1))
sketch7.addConstraint(Sketcher.Constraint("Coincident", 21, 2, 22, 1))
sketch7.addConstraint(Sketcher.Constraint("Tangent", 22, 2, 23, 1))
sketch7.addConstraint(Sketcher.Constraint("Coincident", 23, 2, 24, 1))
sketch7.addConstraint(Sketcher.Constraint("Coincident", 24, 2, 8, 1))
sketch7.addConstraint(Sketcher.Constraint("Vertical", 0))
sketch7.addConstraint(Sketcher.Constraint("Horizontal", 1))
sketch7.addConstraint(Sketcher.Constraint("Horizontal", 3))
sketch7.addConstraint(Sketcher.Constraint("Horizontal", 14))
sketch7.addConstraint(Sketcher.Constraint("Horizontal", 17))
sketch7.addConstraint(Sketcher.Constraint("Vertical", 19))
sketch7.addConstraint(Sketcher.Constraint("Horizontal", 21))
sketch7.addConstraint(Sketcher.Constraint("Horizontal", 24))
sketch7.addConstraint(Sketcher.Constraint("Coincident", 0, 2, -1, 1))
sketch7.addConstraint(Sketcher.Constraint("Coincident", 15, 3, 5, 3))
sketch7.addConstraint(Sketcher.Constraint("Coincident", 18, 3, 4, 3))
sketch7.addConstraint(Sketcher.Constraint("Coincident", 20, 3, 6, 3))
sketch7.addConstraint(Sketcher.Constraint("Coincident", 22, 3, 7, 3))
sketch7.addConstraint(Sketcher.Constraint("Coincident", 25, 3, 8, 3))
sketch7.addConstraint(Sketcher.Constraint("Equal", 4, 5))
sketch7.addConstraint(Sketcher.Constraint("Equal", 5, 6))
sketch7.addConstraint(Sketcher.Constraint("Equal", 6, 7))
sketch7.addConstraint(Sketcher.Constraint("Equal", 8, 15))
sketch7.addConstraint(Sketcher.Constraint("Equal", 15, 16))
sketch7.addConstraint(Sketcher.Constraint("Equal", 16, 18))
sketch7.addConstraint(Sketcher.Constraint("Equal", 18, 20))
sketch7.addConstraint(Sketcher.Constraint("Equal", 20, 22))
sketch7.addConstraint(Sketcher.Constraint("Equal", 22, 23))
sketch7.addConstraint(Sketcher.Constraint("Equal", 7, 25))
sketch7.addConstraint(Sketcher.Constraint("Parallel", 2, 9))
sketch7.addConstraint(Sketcher.Constraint("Parallel", 9, 10))
sketch7.addConstraint(Sketcher.Constraint("Parallel", 10, 11))
sketch7.addConstraint(Sketcher.Constraint("Parallel", 11, 12))
sketch7.addConstraint(Sketcher.Constraint("Parallel", 12, 13))
sketch7.addConstraint(Sketcher.Constraint("Horizontal", 4, 3, 5, 3))
sketch7.addConstraint(Sketcher.Constraint("Horizontal", 6, 3, 7, 3))
sketch7.addConstraint(Sketcher.Constraint("Horizontal", 7, 3, 8, 3))
sketch7.addConstraint(Sketcher.Constraint("Horizontal", 14, 2, 16, 2))
sketch7.addConstraint(Sketcher.Constraint("Horizontal", 15, 2, 18, 2))
sketch7.addConstraint(Sketcher.Constraint("Horizontal", 19, 2, 22, 2))
sketch7.addConstraint(Sketcher.Constraint("Horizontal", 21, 2, 23, 2))
sketch7.addConstraint(Sketcher.Constraint("Vertical", 4, 3, 6, 3))
sketch7.addConstraint(Sketcher.Constraint("Vertical", 5, 3, 7, 3))
sketch7.addConstraint(Sketcher.Constraint("Vertical", 17, 2, 20, 2))
sketch7.addConstraint(Sketcher.Constraint("Diameter", 4, 5.0))
sketch7.addConstraint(Sketcher.Constraint("Radius", 8, 5.0))
sketch7.addConstraint(Sketcher.Constraint("DistanceX", 1, 1, 1, 2, 190.0))
sketch7.addConstraint(Sketcher.Constraint("DistanceX", 3, 2, 3, 1, 300.0))
sketch7.addConstraint(Sketcher.Constraint("DistanceY", 0, 2, 0, 1, 130.0))
sketch7.addConstraint(Sketcher.Constraint("DistanceX", -1, 1, 4, 3, 6.0))
sketch7.addConstraint(Sketcher.Constraint("DistanceY", -1, 1, 4, 3, 6.0))
sketch7.addConstraint(Sketcher.Constraint("DistanceX", -1, 1, 5, 3, 144.0))
sketch7.addConstraint(Sketcher.Constraint("DistanceY", -1, 1, 6, 3, 124.0))
sketch7.addConstraint(Sketcher.Constraint("DistanceY", -1, 1, 9, 2, 77.0))
sketch7.addConstraint(Sketcher.Constraint("DistanceY", -1, 1, 10, 2, 69.0))
sketch7.addConstraint(Sketcher.Constraint("DistanceY", -1, 1, 11, 2, 42.0))
sketch7.addConstraint(Sketcher.Constraint("DistanceY", -1, 1, 12, 2, 18.0))
sketch7.addConstraint(Sketcher.Constraint("DistanceY", -1, 1, 13, 2, 4.0))
sketch7.addConstraint(Sketcher.Constraint("DistanceX", -1, 1, 15, 2, 146.0))
sketch7.addConstraint(Sketcher.Constraint("DistanceX", 14, 2, 14, 1, 39.562229))
sketch7.addConstraint(Sketcher.Constraint("DistanceX", -1, 1, 8, 2, 286.181499))
pad7 = body.newObject("PartDesign::Pad", "Pad006")
pad7.Profile = sketch7
pad7.Length = 30

doc.recompute()
